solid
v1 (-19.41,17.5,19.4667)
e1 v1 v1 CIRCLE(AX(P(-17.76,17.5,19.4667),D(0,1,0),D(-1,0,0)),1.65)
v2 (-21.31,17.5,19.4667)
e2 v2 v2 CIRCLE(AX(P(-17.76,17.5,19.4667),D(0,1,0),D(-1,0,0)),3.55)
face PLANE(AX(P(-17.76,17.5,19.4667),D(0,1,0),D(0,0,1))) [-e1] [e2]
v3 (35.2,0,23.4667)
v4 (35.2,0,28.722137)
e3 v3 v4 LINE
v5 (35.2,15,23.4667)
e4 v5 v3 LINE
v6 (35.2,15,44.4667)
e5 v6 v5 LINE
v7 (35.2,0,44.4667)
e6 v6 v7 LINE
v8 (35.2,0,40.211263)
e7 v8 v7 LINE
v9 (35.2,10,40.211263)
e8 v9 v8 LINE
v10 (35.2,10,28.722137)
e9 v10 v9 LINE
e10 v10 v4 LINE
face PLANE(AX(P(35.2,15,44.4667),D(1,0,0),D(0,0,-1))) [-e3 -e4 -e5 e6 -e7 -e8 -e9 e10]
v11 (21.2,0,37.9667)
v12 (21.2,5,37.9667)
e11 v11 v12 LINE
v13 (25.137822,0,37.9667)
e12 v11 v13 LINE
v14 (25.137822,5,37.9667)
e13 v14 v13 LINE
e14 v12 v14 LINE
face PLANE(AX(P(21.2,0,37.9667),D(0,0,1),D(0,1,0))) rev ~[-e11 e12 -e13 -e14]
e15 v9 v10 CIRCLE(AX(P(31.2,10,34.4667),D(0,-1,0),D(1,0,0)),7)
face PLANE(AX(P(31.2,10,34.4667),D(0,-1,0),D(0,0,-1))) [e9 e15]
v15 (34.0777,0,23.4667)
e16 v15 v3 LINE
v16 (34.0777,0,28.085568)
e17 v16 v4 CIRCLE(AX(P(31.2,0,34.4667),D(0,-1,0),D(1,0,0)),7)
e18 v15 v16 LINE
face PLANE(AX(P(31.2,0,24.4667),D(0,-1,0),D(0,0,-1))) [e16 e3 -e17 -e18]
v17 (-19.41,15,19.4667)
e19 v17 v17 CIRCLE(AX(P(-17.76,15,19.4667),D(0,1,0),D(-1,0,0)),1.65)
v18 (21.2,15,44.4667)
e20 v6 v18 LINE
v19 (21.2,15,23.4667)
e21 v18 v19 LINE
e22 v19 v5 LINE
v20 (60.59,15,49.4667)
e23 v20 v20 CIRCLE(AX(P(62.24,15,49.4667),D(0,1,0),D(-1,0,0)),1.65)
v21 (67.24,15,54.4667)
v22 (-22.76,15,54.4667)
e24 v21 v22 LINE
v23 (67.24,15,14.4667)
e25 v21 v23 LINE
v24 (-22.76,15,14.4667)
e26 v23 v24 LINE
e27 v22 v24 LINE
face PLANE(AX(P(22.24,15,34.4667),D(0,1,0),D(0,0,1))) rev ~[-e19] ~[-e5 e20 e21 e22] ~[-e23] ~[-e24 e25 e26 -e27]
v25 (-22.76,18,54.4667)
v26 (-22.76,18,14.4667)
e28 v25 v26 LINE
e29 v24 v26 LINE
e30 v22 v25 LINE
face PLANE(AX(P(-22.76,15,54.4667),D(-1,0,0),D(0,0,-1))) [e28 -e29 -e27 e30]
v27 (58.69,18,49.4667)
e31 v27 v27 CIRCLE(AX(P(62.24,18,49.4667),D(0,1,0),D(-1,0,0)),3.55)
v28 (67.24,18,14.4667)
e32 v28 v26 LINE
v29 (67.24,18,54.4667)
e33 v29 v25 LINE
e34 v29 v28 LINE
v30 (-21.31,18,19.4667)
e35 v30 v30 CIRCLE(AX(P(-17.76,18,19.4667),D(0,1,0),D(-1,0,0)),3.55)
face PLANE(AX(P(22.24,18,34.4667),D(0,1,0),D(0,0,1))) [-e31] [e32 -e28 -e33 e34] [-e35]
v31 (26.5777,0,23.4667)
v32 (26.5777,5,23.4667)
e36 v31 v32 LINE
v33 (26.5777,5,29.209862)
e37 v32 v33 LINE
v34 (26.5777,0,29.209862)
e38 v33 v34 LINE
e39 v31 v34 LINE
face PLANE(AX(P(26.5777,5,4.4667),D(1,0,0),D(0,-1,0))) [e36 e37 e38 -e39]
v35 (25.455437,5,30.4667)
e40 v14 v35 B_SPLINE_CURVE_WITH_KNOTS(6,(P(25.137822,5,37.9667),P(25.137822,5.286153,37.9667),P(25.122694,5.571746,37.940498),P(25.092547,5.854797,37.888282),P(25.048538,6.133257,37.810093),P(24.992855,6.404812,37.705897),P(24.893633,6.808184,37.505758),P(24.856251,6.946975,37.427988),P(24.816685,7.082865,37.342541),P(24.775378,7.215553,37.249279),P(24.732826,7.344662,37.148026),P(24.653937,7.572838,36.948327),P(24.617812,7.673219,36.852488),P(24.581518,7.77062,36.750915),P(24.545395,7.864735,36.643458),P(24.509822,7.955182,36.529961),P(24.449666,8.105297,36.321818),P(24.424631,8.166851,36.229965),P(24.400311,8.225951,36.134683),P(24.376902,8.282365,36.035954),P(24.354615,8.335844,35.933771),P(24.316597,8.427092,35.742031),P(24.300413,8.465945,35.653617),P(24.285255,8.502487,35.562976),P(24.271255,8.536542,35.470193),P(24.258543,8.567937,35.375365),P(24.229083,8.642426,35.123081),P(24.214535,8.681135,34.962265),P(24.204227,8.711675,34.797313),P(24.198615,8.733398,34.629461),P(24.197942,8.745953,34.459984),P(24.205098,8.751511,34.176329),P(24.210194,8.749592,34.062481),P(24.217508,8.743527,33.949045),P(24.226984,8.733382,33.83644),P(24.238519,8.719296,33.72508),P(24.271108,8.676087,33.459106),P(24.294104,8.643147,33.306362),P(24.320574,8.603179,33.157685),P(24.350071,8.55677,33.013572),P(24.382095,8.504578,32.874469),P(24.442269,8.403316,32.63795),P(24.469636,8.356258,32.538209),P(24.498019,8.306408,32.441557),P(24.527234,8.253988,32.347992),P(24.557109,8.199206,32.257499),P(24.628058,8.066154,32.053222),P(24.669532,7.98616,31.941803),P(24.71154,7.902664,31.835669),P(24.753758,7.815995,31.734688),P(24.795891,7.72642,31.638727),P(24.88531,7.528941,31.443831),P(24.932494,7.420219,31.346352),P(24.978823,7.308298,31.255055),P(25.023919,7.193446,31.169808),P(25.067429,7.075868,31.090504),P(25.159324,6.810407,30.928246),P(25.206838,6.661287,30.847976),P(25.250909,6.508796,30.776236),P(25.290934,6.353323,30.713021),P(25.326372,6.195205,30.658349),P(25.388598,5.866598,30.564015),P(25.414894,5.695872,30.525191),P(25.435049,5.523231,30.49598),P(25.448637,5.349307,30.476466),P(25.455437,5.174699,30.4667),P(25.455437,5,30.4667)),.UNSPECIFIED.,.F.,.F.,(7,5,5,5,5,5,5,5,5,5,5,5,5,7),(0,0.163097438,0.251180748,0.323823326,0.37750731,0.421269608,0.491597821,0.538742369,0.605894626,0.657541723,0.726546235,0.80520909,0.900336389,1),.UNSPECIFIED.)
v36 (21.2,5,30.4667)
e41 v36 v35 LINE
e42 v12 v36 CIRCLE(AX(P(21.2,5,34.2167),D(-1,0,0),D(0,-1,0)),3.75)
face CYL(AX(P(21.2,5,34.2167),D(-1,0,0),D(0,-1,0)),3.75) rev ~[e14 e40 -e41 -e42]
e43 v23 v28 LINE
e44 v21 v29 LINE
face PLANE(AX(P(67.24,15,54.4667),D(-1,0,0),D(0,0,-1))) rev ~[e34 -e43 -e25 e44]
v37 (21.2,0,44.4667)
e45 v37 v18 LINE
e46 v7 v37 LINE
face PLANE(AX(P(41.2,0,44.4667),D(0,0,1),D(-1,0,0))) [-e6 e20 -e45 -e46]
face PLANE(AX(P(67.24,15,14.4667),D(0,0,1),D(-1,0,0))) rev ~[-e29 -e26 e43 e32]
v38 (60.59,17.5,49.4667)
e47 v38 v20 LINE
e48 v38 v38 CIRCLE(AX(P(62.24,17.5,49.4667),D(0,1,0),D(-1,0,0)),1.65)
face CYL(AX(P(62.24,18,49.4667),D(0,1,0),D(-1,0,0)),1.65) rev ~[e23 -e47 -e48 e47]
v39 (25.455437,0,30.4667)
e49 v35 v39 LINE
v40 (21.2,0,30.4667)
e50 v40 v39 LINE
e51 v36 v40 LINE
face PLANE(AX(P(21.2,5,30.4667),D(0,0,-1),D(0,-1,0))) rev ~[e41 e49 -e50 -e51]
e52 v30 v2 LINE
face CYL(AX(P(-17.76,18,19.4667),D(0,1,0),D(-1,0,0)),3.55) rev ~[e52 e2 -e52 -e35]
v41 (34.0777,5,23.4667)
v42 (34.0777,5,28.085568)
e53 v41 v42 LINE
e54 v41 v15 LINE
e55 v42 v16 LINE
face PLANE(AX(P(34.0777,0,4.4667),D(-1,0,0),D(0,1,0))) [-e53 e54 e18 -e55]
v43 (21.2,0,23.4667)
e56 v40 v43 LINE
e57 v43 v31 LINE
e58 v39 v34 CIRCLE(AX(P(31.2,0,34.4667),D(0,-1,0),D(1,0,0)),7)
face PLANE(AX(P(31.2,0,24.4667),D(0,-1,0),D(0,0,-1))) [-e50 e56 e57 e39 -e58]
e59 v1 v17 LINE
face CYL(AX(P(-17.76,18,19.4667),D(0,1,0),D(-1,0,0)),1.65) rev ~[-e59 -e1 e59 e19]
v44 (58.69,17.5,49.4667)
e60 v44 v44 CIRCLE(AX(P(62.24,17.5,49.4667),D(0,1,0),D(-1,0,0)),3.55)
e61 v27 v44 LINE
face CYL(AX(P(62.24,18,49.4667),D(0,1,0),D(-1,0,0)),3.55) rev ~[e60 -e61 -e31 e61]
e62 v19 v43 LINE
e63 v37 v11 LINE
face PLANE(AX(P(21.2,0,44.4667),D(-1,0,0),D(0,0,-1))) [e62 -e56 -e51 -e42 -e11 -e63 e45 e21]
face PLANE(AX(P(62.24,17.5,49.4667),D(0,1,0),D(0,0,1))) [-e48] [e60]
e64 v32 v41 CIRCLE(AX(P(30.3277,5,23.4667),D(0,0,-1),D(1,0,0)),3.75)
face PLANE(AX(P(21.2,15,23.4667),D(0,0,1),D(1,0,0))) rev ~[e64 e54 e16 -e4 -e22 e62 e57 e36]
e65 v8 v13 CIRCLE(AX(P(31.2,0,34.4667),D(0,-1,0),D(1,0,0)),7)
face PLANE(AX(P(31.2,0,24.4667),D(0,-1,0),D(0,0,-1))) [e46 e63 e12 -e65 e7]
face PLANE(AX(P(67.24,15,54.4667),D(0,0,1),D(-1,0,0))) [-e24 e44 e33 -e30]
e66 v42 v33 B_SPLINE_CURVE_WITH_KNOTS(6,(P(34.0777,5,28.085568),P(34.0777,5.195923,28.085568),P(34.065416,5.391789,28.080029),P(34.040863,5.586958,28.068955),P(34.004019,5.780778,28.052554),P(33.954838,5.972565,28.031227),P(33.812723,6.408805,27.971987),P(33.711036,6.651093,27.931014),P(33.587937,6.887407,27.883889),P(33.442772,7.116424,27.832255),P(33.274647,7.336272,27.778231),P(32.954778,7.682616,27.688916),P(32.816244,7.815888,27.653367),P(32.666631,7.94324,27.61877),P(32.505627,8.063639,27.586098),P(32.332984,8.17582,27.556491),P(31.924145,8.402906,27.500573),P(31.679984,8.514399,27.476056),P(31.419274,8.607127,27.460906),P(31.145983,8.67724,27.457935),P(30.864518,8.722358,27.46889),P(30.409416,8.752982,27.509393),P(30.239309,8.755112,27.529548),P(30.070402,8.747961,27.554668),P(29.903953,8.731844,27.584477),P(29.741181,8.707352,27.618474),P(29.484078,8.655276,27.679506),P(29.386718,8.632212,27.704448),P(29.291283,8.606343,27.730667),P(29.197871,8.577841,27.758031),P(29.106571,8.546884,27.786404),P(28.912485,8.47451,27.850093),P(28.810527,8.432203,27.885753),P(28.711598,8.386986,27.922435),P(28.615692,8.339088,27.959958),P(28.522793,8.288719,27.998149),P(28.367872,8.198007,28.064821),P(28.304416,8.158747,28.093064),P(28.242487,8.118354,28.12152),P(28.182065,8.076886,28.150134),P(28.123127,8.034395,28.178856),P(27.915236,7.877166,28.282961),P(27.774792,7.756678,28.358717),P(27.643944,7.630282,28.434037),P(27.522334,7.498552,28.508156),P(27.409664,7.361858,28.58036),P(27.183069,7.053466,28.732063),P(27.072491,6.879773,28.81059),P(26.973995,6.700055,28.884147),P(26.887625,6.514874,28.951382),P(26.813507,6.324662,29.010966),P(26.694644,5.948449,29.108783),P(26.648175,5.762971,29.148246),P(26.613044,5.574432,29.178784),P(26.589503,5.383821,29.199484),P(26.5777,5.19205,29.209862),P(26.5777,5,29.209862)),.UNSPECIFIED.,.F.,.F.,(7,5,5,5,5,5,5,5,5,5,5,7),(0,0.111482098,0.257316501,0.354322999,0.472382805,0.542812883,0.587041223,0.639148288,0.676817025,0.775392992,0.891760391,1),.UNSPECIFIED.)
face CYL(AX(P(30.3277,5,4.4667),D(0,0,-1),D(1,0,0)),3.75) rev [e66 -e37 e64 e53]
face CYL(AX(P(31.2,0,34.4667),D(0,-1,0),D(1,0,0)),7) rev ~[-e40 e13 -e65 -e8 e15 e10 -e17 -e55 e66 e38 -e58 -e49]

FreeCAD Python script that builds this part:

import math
import FreeCAD as App
import Part
import Sketcher
from FreeCAD import Vector

doc = App.newDocument("Part")
body = doc.addObject("PartDesign::Body", "Body")

sketch1 = doc.addObject("Sketcher::SketchObject", "Sketch")
body.addObject(sketch1)
sketch1.AttachmentSupport = (doc.XZ_Plane, [""])
sketch1.MapMode = "FlatFace"
sketch1.addGeometry([
    Part.LineSegment(Vector(21.2, 44.4667, 0), Vector(21.2, 4.4667, 0)),
    Part.LineSegment(Vector(21.2, 4.4667, 0), Vector(41.2, 4.4667, 0)),
    Part.LineSegment(Vector(41.2, 4.4667, 0), Vector(41.2, 44.4667, 0)),
    Part.LineSegment(Vector(41.2, 44.4667, 0), Vector(21.2, 44.4667, 0)),
], False)
sketch1.addConstraint([
    Sketcher.Constraint("Coincident", 0, 2, 1, 1),
    Sketcher.Constraint("Coincident", 1, 2, 2, 1),
    Sketcher.Constraint("Coincident", 2, 2, 3, 1),
    Sketcher.Constraint("Coincident", 3, 2, 0, 1),
    Sketcher.Constraint("Vertical", 0),
    Sketcher.Constraint("Horizontal", 1),
    Sketcher.Constraint("Vertical", 2),
    Sketcher.Constraint("Horizontal", 3),
    Sketcher.Constraint("DistanceX", -1, 1, 0, 2, 21.2),
    Sketcher.Constraint("DistanceX", -1, 1, 1, 2, 41.2),
    Sketcher.Constraint("DistanceY", 0, 2, 0, 1, 40.0),
    Sketcher.Constraint("DistanceY", -1, 1, 0, 2, 4.4667),
])
pad1 = doc.addObject("PartDesign::Pad", "Pad")
body.addObject(pad1)
pad1.Profile = sketch1
pad1.Length = 15
pad1.Reversed = True

sketch2 = doc.addObject("Sketcher::SketchObject", "Sketch001")
body.addObject(sketch2)
sketch2.AttachmentSupport = (doc.XZ_Plane, [""])
sketch2.MapMode = "FlatFace"
sketch2.addGeometry(Part.Circle(Vector(31.2, 34.4667, 0), Vector(0, 0, 1), 7), False)
sketch2.addConstraint([
    Sketcher.Constraint("Diameter", 0, 14.0),
    Sketcher.Constraint("DistanceX", -1, 1, 0, 3, 31.2),
    Sketcher.Constraint("DistanceY", -1, 1, 0, 3, 34.4667),
])
pocket1 = doc.addObject("PartDesign::Pocket", "Pocket")
body.addObject(pocket1)
pocket1.Profile = sketch2
pocket1.Length = 10

sketch3 = doc.addObject("Sketcher::SketchObject", "Sketch002")
body.addObject(sketch3)
sketch3.AttachmentSupport = (doc.YZ_Plane, [""])
sketch3.MapMode = "FlatFace"
sketch3.AttachmentOffset = App.Placement(Vector(0, 0, 21.2), App.Rotation())
sketch3.addGeometry([
    Part.LineSegment(Vector(0, 30.4667, 0), Vector(0, 37.9667, 0)),
    Part.LineSegment(Vector(0, 37.9667, 0), Vector(5, 37.9667, 0)),
    Part.ArcOfCircle(Part.Circle(Vector(5, 34.2167, 0), Vector(0, 0, 1), 3.75), math.radians(-90), math.radians(90)),
    Part.LineSegment(Vector(5, 30.4667, 0), Vector(0, 30.4667, 0)),
], False)
sketch3.addConstraint([
    Sketcher.Constraint("Coincident", 0, 2, 1, 1),
    Sketcher.Constraint("Tangent", 1, 2, 2, 2),
    Sketcher.Constraint("Tangent", 2, 1, 3, 1),
    Sketcher.Constraint("Coincident", 3, 2, 0, 1),
    Sketcher.Constraint("Vertical", 0),
    Sketcher.Constraint("Horizontal", 1),
    Sketcher.Constraint("Horizontal", 3),
    Sketcher.Constraint("PointOnObject", 0, 2, -2),
    Sketcher.Constraint("Radius", 2, 3.75),
    Sketcher.Constraint("DistanceX", 1, 1, 1, 2, 5.0),
    Sketcher.Constraint("DistanceY", -1, 1, 2, 3, 34.2167),
])
pocket2 = doc.addObject("PartDesign::Pocket", "Pocket001")
body.addObject(pocket2)
pocket2.Profile = sketch3
pocket2.Type = "ThroughAll"
pocket2.Reversed = True

sketch4 = doc.addObject("Sketcher::SketchObject", "Sketch003")
body.addObject(sketch4)
sketch4.AttachmentSupport = (doc.XZ_Plane, [""])
sketch4.MapMode = "FlatFace"
sketch4.AttachmentOffset = App.Placement(Vector(0, 0, -15), App.Rotation())
sketch4.addGeometry([
    Part.LineSegment(Vector(35.2, 44.4667, 0), Vector(41.2, 44.4667, 0)),
    Part.LineSegment(Vector(41.2, 44.4667, 0), Vector(41.2, 4.4667, 0)),
    Part.LineSegment(Vector(41.2, 4.4667, 0), Vector(35.2, 4.4667, 0)),
    Part.LineSegment(Vector(35.2, 4.4667, 0), Vector(35.2, 44.4667, 0)),
], False)
sketch4.addConstraint([
    Sketcher.Constraint("Coincident", 0, 2, 1, 1),
    Sketcher.Constraint("Coincident", 1, 2, 2, 1),
    Sketcher.Constraint("Coincident", 2, 2, 3, 1),
    Sketcher.Constraint("Coincident", 3, 2, 0, 1),
    Sketcher.Constraint("Horizontal", 0),
    Sketcher.Constraint("Vertical", 1),
    Sketcher.Constraint("Horizontal", 2),
    Sketcher.Constraint("Vertical", 3),
    Sketcher.Constraint("DistanceX", 0, 1, 0, 2, 6.0),
    Sketcher.Constraint("DistanceY", 1, 2, 1, 1, 40.0),
    Sketcher.Constraint("DistanceX", -1, 1, 0, 2, 41.2),
    Sketcher.Constraint("DistanceY", -1, 1, 0, 2, 44.4667),
])
pocket3 = doc.addObject("PartDesign::Pocket", "Pocket002")
body.addObject(pocket3)
pocket3.Profile = sketch4
pocket3.Type = "ThroughAll"
pocket3.Reversed = True

sketch5 = doc.addObject("Sketcher::SketchObject", "Sketch004")
body.addObject(sketch5)
sketch5.AttachmentSupport = (doc.XY_Plane, [""])
sketch5.MapMode = "FlatFace"
sketch5.AttachmentOffset = App.Placement(Vector(0, 0, 4.4667), App.Rotation())
sketch5.addGeometry([
    Part.LineSegment(Vector(34.0777, 5, 0), Vector(34.0777, 0, 0)),
    Part.LineSegment(Vector(34.0777, 0, 0), Vector(26.5777, 0, 0)),
    Part.LineSegment(Vector(26.5777, 0, 0), Vector(26.5777, 5, 0)),
    Part.ArcOfCircle(Part.Circle(Vector(30.3277, 5, 0), Vector(0, 0, 1), 3.75), math.radians(0), math.radians(180)),
], False)
sketch5.addConstraint([
    Sketcher.Constraint("Coincident", 0, 2, 1, 1),
    Sketcher.Constraint("Coincident", 1, 2, 2, 1),
    Sketcher.Constraint("Tangent", 2, 2, 3, 2),
    Sketcher.Constraint("Tangent", 3, 1, 0, 1),
    Sketcher.Constraint("Vertical", 0),
    Sketcher.Constraint("Horizontal", 1),
    Sketcher.Constraint("Vertical", 2),
    Sketcher.Constraint("PointOnObject", 0, 2, -1),
    Sketcher.Constraint("DistanceY", 0, 2, 0, 1, 5.0),
    Sketcher.Constraint("Radius", 3, 3.75),
    Sketcher.Constraint("DistanceX", -1, 1, 3, 3, 30.3277),
])
pocket4 = doc.addObject("PartDesign::Pocket", "Pocket003")
body.addObject(pocket4)
pocket4.Profile = sketch5
pocket4.Type = "UpToFirst"
pocket4.Reversed = True

sketch6 = doc.addObject("Sketcher::SketchObject", "Sketch005")
body.addObject(sketch6)
sketch6.AttachmentSupport = (doc.XZ_Plane, [""])
sketch6.MapMode = "FlatFace"
sketch6.AttachmentOffset = App.Placement(Vector(0, 0, -15), App.Rotation())
sketch6.addGeometry([
    Part.LineSegment(Vector(35.2, 23.4667, 0), Vector(35.2, 4.4667, 0)),
    Part.LineSegment(Vector(35.2, 4.4667, 0), Vector(21.2, 4.4667, 0)),
    Part.LineSegment(Vector(21.2, 4.4667, 0), Vector(21.2, 23.4667, 0)),
    Part.LineSegment(Vector(21.2, 23.4667, 0), Vector(35.2, 23.4667, 0)),
], False)
sketch6.addConstraint([
    Sketcher.Constraint("Coincident", 0, 2, 1, 1),
    Sketcher.Constraint("Coincident", 1, 2, 2, 1),
    Sketcher.Constraint("Coincident", 2, 2, 3, 1),
    Sketcher.Constraint("Coincident", 3, 2, 0, 1),
    Sketcher.Constraint("Vertical", 0),
    Sketcher.Constraint("Horizontal", 1),
    Sketcher.Constraint("Vertical", 2),
    Sketcher.Constraint("Horizontal", 3),
    Sketcher.Constraint("DistanceX", 1, 2, 1, 1, 14.0),
    Sketcher.Constraint("DistanceY", 0, 2, 0, 1, 19.0),
    Sketcher.Constraint("DistanceX", -1, 1, 0, 2, 35.2),
    Sketcher.Constraint("DistanceY", -1, 1, 0, 2, 4.4667),
])
pocket5 = doc.addObject("PartDesign::Pocket", "Pocket004")
body.addObject(pocket5)
pocket5.Profile = sketch6
pocket5.Type = "UpToFirst"
pocket5.Reversed = True

sketch7 = doc.addObject("Sketcher::SketchObject", "Sketch006")
body.addObject(sketch7)
sketch7.AttachmentSupport = (doc.XZ_Plane, [""])
sketch7.MapMode = "FlatFace"
sketch7.AttachmentOffset = App.Placement(Vector(0, 0, -15), App.Rotation())
sketch7.addGeometry([
    Part.LineSegment(Vector(-22.76, 54.4667, 0), Vector(67.24, 54.4667, 0)),
    Part.LineSegment(Vector(67.24, 54.4667, 0), Vector(67.24, 14.4667, 0)),
    Part.LineSegment(Vector(67.24, 14.4667, 0), Vector(-22.76, 14.4667, 0)),
    Part.LineSegment(Vector(-22.76, 14.4667, 0), Vector(-22.76, 54.4667, 0)),
], False)
sketch7.addConstraint([
    Sketcher.Constraint("Coincident", 0, 2, 1, 1),
    Sketcher.Constraint("Coincident", 1, 2, 2, 1),
    Sketcher.Constraint("Coincident", 2, 2, 3, 1),
    Sketcher.Constraint("Coincident", 3, 2, 0, 1),
    Sketcher.Constraint("Horizontal", 0),
    Sketcher.Constraint("Vertical", 1),
    Sketcher.Constraint("Horizontal", 2),
    Sketcher.Constraint("Vertical", 3),
    Sketcher.Constraint("DistanceX", 0, 1, 0, 2, 90.0),
    Sketcher.Constraint("DistanceY", 1, 2, 1, 1, 40.0),
    Sketcher.Constraint("DistanceX", -1, 1, 0, 2, 67.24),
    Sketcher.Constraint("DistanceY", -1, 1, 0, 2, 54.4667),
])
pad2 = doc.addObject("PartDesign::Pad", "Pad001")
body.addObject(pad2)
pad2.Profile = sketch7
pad2.Length = 3
pad2.Reversed = True

sketch8 = doc.addObject("Sketcher::SketchObject", "Sketch007")
body.addObject(sketch8)
sketch8.AttachmentSupport = (doc.XZ_Plane, [""])
sketch8.MapMode = "FlatFace"
sketch8.AttachmentOffset = App.Placement(Vector(0, 0, -18), App.Rotation())
sketch8.addGeometry([
    Part.Circle(Vector(62.24, 49.4667, 0), Vector(0, 0, 1), 1.65),
    Part.Circle(Vector(-17.76, 19.4667, 0), Vector(0, 0, 1), 1.65),
], False)
sketch8.addConstraint([
    Sketcher.Constraint("Equal", 0, 1),
    Sketcher.Constraint("Diameter", 0, 3.3),
    Sketcher.Constraint("DistanceX", 1, 3, 0, 3, 80.0),
    Sketcher.Constraint("DistanceY", 1, 3, 0, 3, 30.0),
    Sketcher.Constraint("DistanceX", -1, 1, 0, 3, 62.24),
    Sketcher.Constraint("DistanceY", -1, 1, 0, 3, 49.4667),
])
pocket6 = doc.addObject("PartDesign::Pocket", "Pocket005")
body.addObject(pocket6)
pocket6.Profile = sketch8
pocket6.Type = "ThroughAll"
pocket6.Reversed = True

sketch9 = doc.addObject("Sketcher::SketchObject", "Sketch008")
body.addObject(sketch9)
sketch9.AttachmentSupport = (doc.XZ_Plane, [""])
sketch9.MapMode = "FlatFace"
sketch9.AttachmentOffset = App.Placement(Vector(0, 0, -18), App.Rotation())
sketch9.addGeometry([
    Part.Circle(Vector(62.24, 49.4667, 0), Vector(0, 0, 1), 3.55),
    Part.Circle(Vector(-17.76, 19.4667, 0), Vector(0, 0, 1), 3.55),
], False)
sketch9.addConstraint([
    Sketcher.Constraint("Equal", 0, 1),
    Sketcher.Constraint("Diameter", 0, 7.1),
    Sketcher.Constraint("DistanceX", 1, 3, 0, 3, 80.0),
    Sketcher.Constraint("DistanceY", 1, 3, 0, 3, 30.0),
    Sketcher.Constraint("DistanceX", -1, 1, 0, 3, 62.24),
    Sketcher.Constraint("DistanceY", -1, 1, 0, 3, 49.4667),
])
pocket7 = doc.addObject("PartDesign::Pocket", "Pocket006")
body.addObject(pocket7)
pocket7.Profile = sketch9
pocket7.Length = 0.5
pocket7.Reversed = True

doc.recompute()
